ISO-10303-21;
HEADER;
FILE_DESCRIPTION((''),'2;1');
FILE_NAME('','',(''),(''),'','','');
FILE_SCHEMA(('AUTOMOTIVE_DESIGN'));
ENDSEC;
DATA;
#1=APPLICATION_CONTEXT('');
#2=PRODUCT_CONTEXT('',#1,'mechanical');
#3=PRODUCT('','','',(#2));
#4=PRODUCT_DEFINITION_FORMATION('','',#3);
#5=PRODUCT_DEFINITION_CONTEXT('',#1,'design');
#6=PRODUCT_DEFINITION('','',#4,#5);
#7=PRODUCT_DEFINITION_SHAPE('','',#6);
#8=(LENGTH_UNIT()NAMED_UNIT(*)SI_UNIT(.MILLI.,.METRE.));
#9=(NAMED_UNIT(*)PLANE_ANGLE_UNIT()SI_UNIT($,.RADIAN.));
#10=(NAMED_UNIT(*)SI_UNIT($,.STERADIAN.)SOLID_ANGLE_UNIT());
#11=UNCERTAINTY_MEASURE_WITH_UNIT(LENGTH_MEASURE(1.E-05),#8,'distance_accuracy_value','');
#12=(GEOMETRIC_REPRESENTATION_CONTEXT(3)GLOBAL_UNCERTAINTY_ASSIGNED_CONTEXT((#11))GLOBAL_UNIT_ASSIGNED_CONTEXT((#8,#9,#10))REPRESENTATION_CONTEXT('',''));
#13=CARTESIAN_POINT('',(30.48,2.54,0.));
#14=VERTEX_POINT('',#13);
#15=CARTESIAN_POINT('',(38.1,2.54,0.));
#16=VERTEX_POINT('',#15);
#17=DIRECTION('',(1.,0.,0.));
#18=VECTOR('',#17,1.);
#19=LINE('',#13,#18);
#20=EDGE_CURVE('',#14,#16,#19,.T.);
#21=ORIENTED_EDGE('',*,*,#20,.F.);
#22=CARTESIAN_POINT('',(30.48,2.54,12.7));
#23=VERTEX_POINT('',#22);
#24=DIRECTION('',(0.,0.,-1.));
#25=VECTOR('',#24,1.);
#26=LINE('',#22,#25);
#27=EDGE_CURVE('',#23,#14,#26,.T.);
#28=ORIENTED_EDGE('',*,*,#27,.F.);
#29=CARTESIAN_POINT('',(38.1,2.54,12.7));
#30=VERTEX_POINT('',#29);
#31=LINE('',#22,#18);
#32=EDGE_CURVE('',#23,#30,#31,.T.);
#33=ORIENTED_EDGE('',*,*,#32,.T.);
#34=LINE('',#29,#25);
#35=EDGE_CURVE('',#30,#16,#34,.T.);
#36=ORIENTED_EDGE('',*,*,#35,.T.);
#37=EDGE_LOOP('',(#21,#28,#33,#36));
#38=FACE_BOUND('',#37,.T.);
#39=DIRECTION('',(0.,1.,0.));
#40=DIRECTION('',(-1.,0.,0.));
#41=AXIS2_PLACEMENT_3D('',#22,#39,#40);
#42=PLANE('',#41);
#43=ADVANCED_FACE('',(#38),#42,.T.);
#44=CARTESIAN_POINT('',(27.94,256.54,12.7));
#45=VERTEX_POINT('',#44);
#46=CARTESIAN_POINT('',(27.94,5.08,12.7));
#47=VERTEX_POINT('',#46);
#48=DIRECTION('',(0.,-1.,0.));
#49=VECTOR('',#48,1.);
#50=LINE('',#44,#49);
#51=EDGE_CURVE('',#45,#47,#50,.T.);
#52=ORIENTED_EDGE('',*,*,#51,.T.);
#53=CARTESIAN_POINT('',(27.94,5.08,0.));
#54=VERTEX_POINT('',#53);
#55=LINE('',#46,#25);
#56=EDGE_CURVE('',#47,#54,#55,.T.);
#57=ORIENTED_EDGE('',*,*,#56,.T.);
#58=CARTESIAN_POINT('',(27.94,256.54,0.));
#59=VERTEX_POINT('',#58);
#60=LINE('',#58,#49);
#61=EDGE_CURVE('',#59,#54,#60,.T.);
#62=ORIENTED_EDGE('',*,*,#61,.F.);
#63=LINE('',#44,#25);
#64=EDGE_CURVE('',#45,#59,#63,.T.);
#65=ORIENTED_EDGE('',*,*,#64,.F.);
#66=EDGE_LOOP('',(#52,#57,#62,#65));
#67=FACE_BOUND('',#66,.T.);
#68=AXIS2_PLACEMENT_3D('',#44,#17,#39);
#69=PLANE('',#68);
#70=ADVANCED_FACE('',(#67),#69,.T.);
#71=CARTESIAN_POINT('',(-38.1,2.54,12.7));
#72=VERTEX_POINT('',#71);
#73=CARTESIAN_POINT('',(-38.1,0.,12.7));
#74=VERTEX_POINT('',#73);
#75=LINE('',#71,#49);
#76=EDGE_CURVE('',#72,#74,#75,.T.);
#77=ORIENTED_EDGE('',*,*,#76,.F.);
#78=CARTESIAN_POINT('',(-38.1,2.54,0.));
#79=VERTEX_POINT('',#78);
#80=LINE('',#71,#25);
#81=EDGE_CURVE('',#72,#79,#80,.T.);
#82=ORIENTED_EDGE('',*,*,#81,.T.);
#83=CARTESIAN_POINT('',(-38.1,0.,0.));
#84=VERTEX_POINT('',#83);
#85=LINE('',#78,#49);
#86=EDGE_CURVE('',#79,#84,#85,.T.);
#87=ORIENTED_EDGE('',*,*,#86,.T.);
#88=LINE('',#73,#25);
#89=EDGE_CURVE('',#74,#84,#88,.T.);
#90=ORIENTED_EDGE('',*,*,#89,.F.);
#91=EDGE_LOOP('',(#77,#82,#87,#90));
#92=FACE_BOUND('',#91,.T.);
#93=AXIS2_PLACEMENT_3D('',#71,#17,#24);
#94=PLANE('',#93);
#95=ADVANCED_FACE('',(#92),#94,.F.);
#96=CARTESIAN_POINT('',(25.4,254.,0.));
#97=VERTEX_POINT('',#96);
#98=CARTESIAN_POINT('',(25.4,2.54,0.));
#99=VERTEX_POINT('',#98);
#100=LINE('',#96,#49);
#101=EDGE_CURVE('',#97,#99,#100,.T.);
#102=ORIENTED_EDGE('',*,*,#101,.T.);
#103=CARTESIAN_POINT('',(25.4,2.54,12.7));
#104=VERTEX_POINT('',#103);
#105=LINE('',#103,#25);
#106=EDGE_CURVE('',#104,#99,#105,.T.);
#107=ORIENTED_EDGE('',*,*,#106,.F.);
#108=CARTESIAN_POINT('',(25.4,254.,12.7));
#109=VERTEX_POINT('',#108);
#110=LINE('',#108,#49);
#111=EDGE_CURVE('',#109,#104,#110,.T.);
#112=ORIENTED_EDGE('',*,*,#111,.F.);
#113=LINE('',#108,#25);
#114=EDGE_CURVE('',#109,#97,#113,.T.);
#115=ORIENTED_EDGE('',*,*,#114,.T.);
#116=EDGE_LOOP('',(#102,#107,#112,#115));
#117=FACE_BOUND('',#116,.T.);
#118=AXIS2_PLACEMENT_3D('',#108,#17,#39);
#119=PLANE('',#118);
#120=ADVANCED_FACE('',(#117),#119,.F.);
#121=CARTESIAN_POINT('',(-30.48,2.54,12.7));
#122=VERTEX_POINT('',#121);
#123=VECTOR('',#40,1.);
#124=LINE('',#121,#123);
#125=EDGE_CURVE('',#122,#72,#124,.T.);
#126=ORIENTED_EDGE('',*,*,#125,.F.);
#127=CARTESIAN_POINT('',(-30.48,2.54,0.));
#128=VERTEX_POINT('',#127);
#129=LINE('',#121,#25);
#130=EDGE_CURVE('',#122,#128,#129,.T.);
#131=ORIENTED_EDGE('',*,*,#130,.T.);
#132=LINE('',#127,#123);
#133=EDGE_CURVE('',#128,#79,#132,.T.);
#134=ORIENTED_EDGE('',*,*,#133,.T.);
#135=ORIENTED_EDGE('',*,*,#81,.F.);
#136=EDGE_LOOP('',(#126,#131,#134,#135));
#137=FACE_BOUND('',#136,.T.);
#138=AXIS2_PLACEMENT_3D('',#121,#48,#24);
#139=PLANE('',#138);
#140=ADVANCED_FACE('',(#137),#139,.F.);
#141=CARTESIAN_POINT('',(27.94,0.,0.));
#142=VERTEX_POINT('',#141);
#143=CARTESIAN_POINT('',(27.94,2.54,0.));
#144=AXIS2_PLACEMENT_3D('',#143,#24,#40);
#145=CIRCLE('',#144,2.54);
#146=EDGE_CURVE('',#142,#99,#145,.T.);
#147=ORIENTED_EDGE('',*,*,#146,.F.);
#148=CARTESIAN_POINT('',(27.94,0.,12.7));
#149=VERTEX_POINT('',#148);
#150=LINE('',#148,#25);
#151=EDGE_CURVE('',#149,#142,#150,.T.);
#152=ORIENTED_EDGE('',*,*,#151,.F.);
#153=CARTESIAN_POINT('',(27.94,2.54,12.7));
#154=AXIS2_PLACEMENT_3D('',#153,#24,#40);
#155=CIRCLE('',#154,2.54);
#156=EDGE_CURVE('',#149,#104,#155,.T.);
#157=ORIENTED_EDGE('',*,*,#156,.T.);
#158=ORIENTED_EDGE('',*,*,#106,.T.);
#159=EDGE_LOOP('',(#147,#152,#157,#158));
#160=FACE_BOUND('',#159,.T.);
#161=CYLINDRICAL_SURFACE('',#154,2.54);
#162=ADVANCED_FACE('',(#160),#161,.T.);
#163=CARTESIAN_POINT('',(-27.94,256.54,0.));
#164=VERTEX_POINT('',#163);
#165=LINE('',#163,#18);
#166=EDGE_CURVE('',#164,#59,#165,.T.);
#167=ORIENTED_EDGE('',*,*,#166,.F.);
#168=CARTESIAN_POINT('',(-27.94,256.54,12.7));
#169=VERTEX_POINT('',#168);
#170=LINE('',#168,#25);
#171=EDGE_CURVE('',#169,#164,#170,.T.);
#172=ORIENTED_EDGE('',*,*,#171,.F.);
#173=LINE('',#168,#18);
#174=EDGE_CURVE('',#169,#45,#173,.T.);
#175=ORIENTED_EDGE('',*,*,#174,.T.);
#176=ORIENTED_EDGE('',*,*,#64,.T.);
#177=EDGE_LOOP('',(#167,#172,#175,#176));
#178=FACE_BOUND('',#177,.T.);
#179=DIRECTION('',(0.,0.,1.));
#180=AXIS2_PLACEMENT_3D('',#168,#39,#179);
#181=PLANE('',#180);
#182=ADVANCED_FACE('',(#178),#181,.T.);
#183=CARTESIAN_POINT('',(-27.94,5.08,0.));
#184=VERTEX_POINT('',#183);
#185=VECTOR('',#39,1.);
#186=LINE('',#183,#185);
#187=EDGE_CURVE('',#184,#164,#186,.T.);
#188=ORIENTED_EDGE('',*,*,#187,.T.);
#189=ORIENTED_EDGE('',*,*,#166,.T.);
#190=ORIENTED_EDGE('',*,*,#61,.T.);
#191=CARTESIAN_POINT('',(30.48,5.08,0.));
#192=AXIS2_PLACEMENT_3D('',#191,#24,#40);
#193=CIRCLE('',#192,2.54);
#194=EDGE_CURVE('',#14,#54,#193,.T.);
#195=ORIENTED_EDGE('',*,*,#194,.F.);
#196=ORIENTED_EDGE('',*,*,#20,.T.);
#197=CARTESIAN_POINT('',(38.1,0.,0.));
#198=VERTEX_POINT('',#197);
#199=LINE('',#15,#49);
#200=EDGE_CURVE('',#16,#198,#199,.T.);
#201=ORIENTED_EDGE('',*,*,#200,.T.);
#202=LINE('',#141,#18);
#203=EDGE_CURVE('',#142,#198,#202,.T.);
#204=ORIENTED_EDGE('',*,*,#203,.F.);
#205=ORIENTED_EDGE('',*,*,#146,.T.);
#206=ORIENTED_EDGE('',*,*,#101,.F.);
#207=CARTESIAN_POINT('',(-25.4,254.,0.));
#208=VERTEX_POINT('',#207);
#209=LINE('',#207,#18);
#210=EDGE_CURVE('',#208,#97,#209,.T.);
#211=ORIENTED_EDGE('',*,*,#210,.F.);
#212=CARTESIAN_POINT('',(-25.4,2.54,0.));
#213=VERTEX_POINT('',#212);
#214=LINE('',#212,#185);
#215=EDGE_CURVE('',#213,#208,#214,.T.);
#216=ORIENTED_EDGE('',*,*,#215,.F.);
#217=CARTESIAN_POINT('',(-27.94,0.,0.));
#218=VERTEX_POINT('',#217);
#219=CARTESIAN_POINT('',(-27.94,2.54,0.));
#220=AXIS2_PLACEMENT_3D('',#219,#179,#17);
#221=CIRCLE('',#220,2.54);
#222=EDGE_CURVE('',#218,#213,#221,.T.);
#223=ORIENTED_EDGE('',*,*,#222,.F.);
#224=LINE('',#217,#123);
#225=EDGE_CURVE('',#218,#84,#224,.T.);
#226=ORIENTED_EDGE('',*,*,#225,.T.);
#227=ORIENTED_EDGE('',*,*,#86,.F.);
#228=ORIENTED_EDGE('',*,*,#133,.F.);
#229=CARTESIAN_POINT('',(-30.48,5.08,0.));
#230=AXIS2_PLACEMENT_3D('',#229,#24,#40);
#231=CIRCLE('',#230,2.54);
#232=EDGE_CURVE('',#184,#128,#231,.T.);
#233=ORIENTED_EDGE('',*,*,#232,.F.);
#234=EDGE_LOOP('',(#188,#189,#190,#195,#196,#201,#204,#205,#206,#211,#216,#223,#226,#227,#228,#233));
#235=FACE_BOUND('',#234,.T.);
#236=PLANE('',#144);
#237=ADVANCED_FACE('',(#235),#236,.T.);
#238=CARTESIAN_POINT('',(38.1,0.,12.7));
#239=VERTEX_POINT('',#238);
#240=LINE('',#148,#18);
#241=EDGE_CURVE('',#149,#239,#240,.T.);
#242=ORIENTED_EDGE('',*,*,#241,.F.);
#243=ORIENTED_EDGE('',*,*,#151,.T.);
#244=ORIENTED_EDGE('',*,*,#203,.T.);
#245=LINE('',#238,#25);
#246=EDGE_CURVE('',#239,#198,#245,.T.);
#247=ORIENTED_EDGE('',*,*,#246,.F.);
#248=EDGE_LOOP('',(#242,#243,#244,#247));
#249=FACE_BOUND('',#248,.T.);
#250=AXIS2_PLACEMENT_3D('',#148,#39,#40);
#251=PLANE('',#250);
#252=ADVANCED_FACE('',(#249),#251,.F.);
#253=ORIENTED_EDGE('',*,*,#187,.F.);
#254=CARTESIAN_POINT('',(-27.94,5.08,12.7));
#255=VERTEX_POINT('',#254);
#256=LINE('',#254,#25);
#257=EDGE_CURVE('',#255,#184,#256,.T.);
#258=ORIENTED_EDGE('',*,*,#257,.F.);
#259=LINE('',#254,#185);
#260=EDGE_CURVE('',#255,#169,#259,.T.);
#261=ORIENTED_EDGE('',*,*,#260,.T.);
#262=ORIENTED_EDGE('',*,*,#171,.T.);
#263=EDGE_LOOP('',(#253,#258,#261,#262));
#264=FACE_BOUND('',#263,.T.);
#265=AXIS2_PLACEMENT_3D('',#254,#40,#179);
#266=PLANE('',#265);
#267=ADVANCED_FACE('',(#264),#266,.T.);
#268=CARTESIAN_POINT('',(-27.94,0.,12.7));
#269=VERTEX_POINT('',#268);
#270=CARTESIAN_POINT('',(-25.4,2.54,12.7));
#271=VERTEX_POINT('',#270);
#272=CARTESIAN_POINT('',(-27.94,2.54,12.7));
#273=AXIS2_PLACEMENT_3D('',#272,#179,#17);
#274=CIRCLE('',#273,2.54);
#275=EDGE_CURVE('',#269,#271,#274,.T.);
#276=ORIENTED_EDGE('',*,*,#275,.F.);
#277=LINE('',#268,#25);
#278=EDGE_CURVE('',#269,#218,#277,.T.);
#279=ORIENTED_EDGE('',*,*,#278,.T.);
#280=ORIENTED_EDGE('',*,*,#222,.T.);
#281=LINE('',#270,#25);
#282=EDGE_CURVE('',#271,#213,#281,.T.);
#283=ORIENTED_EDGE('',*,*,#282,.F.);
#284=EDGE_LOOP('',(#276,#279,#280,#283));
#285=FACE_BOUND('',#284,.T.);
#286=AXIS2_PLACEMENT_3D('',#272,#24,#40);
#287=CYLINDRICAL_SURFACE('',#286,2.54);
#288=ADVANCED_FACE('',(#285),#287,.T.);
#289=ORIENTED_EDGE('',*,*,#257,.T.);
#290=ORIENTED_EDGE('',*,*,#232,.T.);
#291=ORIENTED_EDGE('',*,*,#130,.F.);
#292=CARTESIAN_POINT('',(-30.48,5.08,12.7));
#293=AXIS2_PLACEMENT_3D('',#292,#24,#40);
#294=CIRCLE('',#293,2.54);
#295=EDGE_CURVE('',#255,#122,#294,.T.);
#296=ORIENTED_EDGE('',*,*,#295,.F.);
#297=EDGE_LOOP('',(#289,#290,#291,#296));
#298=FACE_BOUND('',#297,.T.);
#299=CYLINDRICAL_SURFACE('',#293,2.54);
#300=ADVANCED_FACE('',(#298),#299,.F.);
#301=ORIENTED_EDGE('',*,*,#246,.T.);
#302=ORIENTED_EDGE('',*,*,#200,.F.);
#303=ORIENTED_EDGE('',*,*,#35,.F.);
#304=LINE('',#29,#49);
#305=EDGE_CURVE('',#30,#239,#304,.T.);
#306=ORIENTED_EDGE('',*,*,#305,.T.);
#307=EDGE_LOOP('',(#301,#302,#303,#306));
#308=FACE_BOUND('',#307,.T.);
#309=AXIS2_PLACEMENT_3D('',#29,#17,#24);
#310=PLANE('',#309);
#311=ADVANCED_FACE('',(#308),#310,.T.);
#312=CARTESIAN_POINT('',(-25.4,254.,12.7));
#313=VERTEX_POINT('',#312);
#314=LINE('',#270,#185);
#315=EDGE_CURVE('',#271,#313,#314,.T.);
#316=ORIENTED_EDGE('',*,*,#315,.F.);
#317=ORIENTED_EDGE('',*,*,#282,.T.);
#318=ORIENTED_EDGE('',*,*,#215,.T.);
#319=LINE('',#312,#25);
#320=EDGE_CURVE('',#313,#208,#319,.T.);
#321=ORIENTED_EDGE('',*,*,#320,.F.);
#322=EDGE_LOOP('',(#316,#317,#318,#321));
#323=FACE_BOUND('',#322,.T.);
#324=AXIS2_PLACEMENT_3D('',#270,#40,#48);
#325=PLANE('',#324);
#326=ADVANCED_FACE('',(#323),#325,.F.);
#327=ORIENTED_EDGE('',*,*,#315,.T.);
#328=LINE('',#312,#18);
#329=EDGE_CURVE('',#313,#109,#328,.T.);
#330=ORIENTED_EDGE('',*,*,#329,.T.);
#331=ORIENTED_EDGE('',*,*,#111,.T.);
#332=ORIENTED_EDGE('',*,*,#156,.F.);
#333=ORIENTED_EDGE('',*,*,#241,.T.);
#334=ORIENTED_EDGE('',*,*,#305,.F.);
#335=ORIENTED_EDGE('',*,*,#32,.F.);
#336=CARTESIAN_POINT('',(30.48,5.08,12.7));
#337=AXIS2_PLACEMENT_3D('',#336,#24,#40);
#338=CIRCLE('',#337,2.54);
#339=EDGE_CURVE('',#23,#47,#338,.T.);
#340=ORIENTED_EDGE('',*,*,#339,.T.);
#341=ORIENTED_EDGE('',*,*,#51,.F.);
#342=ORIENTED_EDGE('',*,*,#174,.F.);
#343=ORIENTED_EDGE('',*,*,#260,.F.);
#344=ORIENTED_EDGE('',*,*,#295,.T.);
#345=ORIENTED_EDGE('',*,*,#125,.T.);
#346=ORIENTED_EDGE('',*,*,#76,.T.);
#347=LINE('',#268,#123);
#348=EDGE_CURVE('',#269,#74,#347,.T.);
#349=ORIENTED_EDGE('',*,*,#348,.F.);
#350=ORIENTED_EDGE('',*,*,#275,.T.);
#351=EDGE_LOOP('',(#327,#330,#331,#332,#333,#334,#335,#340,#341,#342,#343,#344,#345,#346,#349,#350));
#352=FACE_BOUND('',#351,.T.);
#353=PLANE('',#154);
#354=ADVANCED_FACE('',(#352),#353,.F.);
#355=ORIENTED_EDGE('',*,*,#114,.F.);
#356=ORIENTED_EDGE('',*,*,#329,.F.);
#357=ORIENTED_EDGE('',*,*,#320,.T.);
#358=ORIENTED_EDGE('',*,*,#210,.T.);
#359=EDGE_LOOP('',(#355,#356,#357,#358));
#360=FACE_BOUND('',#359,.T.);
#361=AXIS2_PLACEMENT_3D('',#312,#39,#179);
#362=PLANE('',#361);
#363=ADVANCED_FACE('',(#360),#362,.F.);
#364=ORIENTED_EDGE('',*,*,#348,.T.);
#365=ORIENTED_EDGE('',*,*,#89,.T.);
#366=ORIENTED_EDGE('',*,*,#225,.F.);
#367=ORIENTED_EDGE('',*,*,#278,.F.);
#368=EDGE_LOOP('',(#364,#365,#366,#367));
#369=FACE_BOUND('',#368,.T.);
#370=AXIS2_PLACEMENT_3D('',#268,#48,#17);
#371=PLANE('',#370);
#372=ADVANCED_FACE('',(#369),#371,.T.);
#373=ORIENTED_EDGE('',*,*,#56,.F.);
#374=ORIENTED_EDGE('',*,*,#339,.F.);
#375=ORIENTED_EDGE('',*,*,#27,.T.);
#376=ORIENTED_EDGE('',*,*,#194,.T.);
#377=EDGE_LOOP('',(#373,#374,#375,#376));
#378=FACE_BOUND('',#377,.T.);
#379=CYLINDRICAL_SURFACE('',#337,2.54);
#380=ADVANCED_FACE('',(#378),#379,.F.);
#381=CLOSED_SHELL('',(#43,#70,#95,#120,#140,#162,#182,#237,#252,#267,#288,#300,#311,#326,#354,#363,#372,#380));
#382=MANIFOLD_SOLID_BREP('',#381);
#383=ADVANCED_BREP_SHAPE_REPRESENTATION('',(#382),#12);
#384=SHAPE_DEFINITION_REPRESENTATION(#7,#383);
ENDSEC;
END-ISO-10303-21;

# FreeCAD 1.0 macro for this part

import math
import FreeCAD as App
import Part
import Sketcher
Q = App.Units.Quantity

doc = App.newDocument("Part")
body = doc.addObject("PartDesign::Body", "Body")

sketch1 = doc.addObject("Sketcher::SketchObject", "Sketch")
body.addObject(sketch1)
sketch1.AttachmentSupport = (doc.XY_Plane, [""])
sketch1.MapMode = "FlatFace"
sketch1.addGeometry(Part.LineSegment(App.Vector(-25.4, 2.5, 0), App.Vector(-25.4, 254, 0)), False)
sketch1.addGeometry(Part.LineSegment(App.Vector(-25.4, 254, 0), App.Vector(25.4, 254, 0)), False)
sketch1.addGeometry(Part.LineSegment(App.Vector(25.4, 254, 0), App.Vector(25.4, 2.5, 0)), False)
sketch1.addGeometry(Part.ArcOfCircle(Part.Circle(App.Vector(27.9, 2.5, 0), App.Vector(0, 0, 1), 2.5), math.radians(-180), math.radians(-90)), False)
sketch1.addGeometry(Part.LineSegment(App.Vector(27.9, 0, 0), App.Vector(38.1, 0, 0)), False)
sketch1.addGeometry(Part.LineSegment(App.Vector(38.1, 0, 0), App.Vector(38.1, 2.5, 0)), False)
sketch1.addGeometry(Part.LineSegment(App.Vector(38.1, 2.5, 0), App.Vector(30.5, 2.5, 0)), False)
sketch1.addGeometry(Part.ArcOfCircle(Part.Circle(App.Vector(30.5, 5.1, 0), App.Vector(0, 0, 1), 2.5), math.radians(-180), math.radians(-90)), False)
sketch1.addGeometry(Part.LineSegment(App.Vector(27.9, 5.1, 0), App.Vector(27.9, 256.5, 0)), False)
sketch1.addGeometry(Part.LineSegment(App.Vector(27.9, 256.5, 0), App.Vector(-27.9, 256.5, 0)), False)
sketch1.addGeometry(Part.LineSegment(App.Vector(-27.9, 256.5, 0), App.Vector(-27.9, 5.1, 0)), False)
sketch1.addGeometry(Part.ArcOfCircle(Part.Circle(App.Vector(-30.5, 5.1, 0), App.Vector(0, 0, 1), 2.5), math.radians(-90), math.radians(0)), False)
sketch1.addGeometry(Part.LineSegment(App.Vector(-30.5, 2.5, 0), App.Vector(-38.1, 2.5, 0)), False)
sketch1.addGeometry(Part.LineSegment(App.Vector(-38.1, 2.5, 0), App.Vector(-38.1, 0, 0)), False)
sketch1.addGeometry(Part.LineSegment(App.Vector(-38.1, 0, 0), App.Vector(-27.9, 0, 0)), False)
sketch1.addGeometry(Part.ArcOfCircle(Part.Circle(App.Vector(-27.9, 2.5, 0), App.Vector(0, 0, 1), 2.5), math.radians(-90), math.radians(0)), False)
sketch1.addConstraint(Sketcher.Constraint("Coincident", 0, 2, 1, 1))
sketch1.addConstraint(Sketcher.Constraint("Coincident", 1, 2, 2, 1))
sketch1.addConstraint(Sketcher.Constraint("Tangent", 2, 2, 3, 1))
sketch1.addConstraint(Sketcher.Constraint("Tangent", 3, 2, 4, 1))
sketch1.addConstraint(Sketcher.Constraint("Coincident", 4, 2, 5, 1))
sketch1.addConstraint(Sketcher.Constraint("Coincident", 5, 2, 6, 1))
sketch1.addConstraint(Sketcher.Constraint("Tangent", 6, 2, 7, 2))
sketch1.addConstraint(Sketcher.Constraint("Tangent", 7, 1, 8, 1))
sketch1.addConstraint(Sketcher.Constraint("Coincident", 8, 2, 9, 1))
sketch1.addConstraint(Sketcher.Constraint("Coincident", 9, 2, 10, 1))
sketch1.addConstraint(Sketcher.Constraint("Tangent", 10, 2, 11, 2))
sketch1.addConstraint(Sketcher.Constraint("Tangent", 11, 1, 12, 1))
sketch1.addConstraint(Sketcher.Constraint("Coincident", 12, 2, 13, 1))
sketch1.addConstraint(Sketcher.Constraint("Coincident", 13, 2, 14, 1))
sketch1.addConstraint(Sketcher.Constraint("Tangent", 14, 2, 15, 1))
sketch1.addConstraint(Sketcher.Constraint("Tangent", 15, 2, 0, 1))
sketch1.addConstraint(Sketcher.Constraint("Vertical", 0))
sketch1.addConstraint(Sketcher.Constraint("Horizontal", 1))
sketch1.addConstraint(Sketcher.Constraint("Vertical", 2))
sketch1.addConstraint(Sketcher.Constraint("Horizontal", 4))
sketch1.addConstraint(Sketcher.Constraint("Vertical", 5))
sketch1.addConstraint(Sketcher.Constraint("Horizontal", 6))
sketch1.addConstraint(Sketcher.Constraint("Vertical", 8))
sketch1.addConstraint(Sketcher.Constraint("Horizontal", 9))
sketch1.addConstraint(Sketcher.Constraint("Vertical", 10))
sketch1.addConstraint(Sketcher.Constraint("Horizontal", 12))
sketch1.addConstraint(Sketcher.Constraint("Vertical", 13))
sketch1.addConstraint(Sketcher.Constraint("Horizontal", 14))
sketch1.addConstraint(Sketcher.Constraint("Equal", 3, 7))
sketch1.addConstraint(Sketcher.Constraint("Equal", 7, 11))
sketch1.addConstraint(Sketcher.Constraint("Equal", 11, 15))
sketch1.addConstraint(Sketcher.Constraint("Symmetric", 4, 2, 13, 2, -1, 1))
sketch1.addConstraint(Sketcher.Constraint("Symmetric", 7, 3, 11, 3, -2))
sketch1.addConstraint(Sketcher.Constraint("Symmetric", 3, 3, 15, 3, -2))
sketch1.addConstraint(Sketcher.Constraint("Horizontal", 2, 2, 5, 2))
sketch1.addConstraint(Sketcher.Constraint("Vertical", 3, 2, 7, 1))
sketch1.addConstraint(Sketcher.Constraint("Equal", 2, 8))
sketch1.addConstraint(Sketcher.Constraint("Radius", 3, Q("0.1 in")))
sketch1.addConstraint(Sketcher.Constraint("DistanceX", 1, 1, 1, 2, Q("2 in")))
sketch1.addConstraint(Sketcher.Constraint("DistanceX", 4, 1, 4, 2, Q("0.4 in")))
sketch1.addConstraint(Sketcher.Constraint("DistanceY", 0, 1, 0, 2, Q("9.9 in")))
pad1 = doc.addObject("PartDesign::Pad", "Pad")
body.addObject(pad1)
pad1.Profile = sketch1
pad1.Length = Q("0.5 in")

doc.recompute()
